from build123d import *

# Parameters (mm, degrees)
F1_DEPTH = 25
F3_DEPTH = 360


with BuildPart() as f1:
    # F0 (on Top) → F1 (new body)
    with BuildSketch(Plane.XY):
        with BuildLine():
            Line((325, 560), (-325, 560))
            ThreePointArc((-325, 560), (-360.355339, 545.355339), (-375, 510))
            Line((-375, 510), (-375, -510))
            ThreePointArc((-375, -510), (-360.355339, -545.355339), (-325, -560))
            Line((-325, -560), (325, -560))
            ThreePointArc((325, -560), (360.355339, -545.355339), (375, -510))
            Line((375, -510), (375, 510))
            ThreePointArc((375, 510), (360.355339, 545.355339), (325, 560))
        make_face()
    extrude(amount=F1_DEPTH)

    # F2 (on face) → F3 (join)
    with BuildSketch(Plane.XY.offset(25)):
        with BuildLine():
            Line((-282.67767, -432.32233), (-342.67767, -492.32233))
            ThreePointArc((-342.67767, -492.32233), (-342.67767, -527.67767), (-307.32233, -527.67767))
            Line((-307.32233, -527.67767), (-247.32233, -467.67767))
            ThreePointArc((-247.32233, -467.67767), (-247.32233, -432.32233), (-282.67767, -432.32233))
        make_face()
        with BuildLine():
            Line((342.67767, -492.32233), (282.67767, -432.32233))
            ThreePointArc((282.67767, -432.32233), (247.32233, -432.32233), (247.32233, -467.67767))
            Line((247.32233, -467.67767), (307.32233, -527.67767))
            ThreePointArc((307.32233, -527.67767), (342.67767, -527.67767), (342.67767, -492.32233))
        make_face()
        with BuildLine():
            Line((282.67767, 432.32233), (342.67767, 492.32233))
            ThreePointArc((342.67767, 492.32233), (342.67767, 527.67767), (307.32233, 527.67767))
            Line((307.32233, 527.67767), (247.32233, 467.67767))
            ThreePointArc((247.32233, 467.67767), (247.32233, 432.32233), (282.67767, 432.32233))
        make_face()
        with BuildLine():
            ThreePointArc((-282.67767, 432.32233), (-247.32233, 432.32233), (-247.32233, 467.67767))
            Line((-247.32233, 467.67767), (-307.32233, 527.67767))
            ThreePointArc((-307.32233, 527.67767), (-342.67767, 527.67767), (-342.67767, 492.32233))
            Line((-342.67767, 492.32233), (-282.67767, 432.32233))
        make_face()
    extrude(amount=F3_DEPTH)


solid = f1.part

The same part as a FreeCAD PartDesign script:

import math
import FreeCAD as App
import Part
import Sketcher

V = App.Vector

doc = App.newDocument("Part")
body = doc.addObject("PartDesign::Body", "Body")

sketch1 = body.newObject("Sketcher::SketchObject", "Sketch")
sketch1.AttachmentSupport = (doc.getObject("XY_Plane"), [""])
sketch1.MapMode = "FlatFace"
sketch1.addGeometry(Part.LineSegment(V(325, 560, 0), V(-325, 560, 0)), False)
sketch1.addGeometry(Part.ArcOfCircle(Part.Circle(V(-325, 510, 0), V(0, 0, 1), 50), math.radians(90), math.radians(180)), False)
sketch1.addGeometry(Part.LineSegment(V(-375, 510, 0), V(-375, -510, 0)), False)
sketch1.addGeometry(Part.ArcOfCircle(Part.Circle(V(-325, -510, 0), V(0, 0, 1), 50), math.radians(-180), math.radians(-90)), False)
sketch1.addGeometry(Part.LineSegment(V(-325, -560, 0), V(325, -560, 0)), False)
sketch1.addGeometry(Part.ArcOfCircle(Part.Circle(V(325, -510, 0), V(0, 0, 1), 50), math.radians(-90), math.radians(0)), False)
sketch1.addGeometry(Part.LineSegment(V(375, -510, 0), V(375, 510, 0)), False)
sketch1.addGeometry(Part.ArcOfCircle(Part.Circle(V(325, 510, 0), V(0, 0, 1), 50), math.radians(0), math.radians(90)), False)
sketch1.addConstraint(Sketcher.Constraint("Tangent", 0, 2, 1, 1))
sketch1.addConstraint(Sketcher.Constraint("Tangent", 1, 2, 2, 1))
sketch1.addConstraint(Sketcher.Constraint("Tangent", 2, 2, 3, 1))
sketch1.addConstraint(Sketcher.Constraint("Tangent", 3, 2, 4, 1))
sketch1.addConstraint(Sketcher.Constraint("Tangent", 4, 2, 5, 1))
sketch1.addConstraint(Sketcher.Constraint("Tangent", 5, 2, 6, 1))
sketch1.addConstraint(Sketcher.Constraint("Tangent", 6, 2, 7, 1))
sketch1.addConstraint(Sketcher.Constraint("Tangent", 7, 2, 0, 1))
sketch1.addConstraint(Sketcher.Constraint("Horizontal", 0))
sketch1.addConstraint(Sketcher.Constraint("Vertical", 2))
sketch1.addConstraint(Sketcher.Constraint("Horizontal", 4))
sketch1.addConstraint(Sketcher.Constraint("Vertical", 6))
sketch1.addConstraint(Sketcher.Constraint("Equal", 1, 3))
sketch1.addConstraint(Sketcher.Constraint("Equal", 3, 5))
sketch1.addConstraint(Sketcher.Constraint("Equal", 5, 7))
sketch1.addConstraint(Sketcher.Constraint("Symmetric", 1, 3, 5, 3, -1, 1))
sketch1.addConstraint(Sketcher.Constraint("Radius", 1, 50.0))
sketch1.addConstraint(Sketcher.Constraint("DistanceX", 0, 2, 0, 1, 650.0))
sketch1.addConstraint(Sketcher.Constraint("DistanceY", 2, 2, 2, 1, 1020.0))
pad1 = body.newObject("PartDesign::Pad", "Pad")
pad1.Profile = sketch1
pad1.Length = 25

sketch2 = body.newObject("Sketcher::SketchObject", "Sketch001")
sketch2.AttachmentSupport = (doc.getObject("XY_Plane"), [""])
sketch2.MapMode = "FlatFace"
sketch2.AttachmentOffset = App.Placement(V(0, 0, 25), App.Rotation())
sketch2.addGeometry(Part.LineSegment(V(-283, -432, 0), V(-343, -492, 0)), False)
sketch2.addGeometry(Part.ArcOfCircle(Part.Circle(V(-325, -510, 0), V(0, 0, 1), 25), math.radians(135), math.radians(315)), False)
sketch2.addGeometry(Part.LineSegment(V(-307, -528, 0), V(-247, -468, 0)), False)
sketch2.addGeometry(Part.ArcOfCircle(Part.Circle(V(-265, -450, 0), V(0, 0, 1), 25), math.radians(-45), math.radians(135)), False)
sketch2.addGeometry(Part.LineSegment(V(343, -492, 0), V(283, -432, 0)), False)
sketch2.addGeometry(Part.ArcOfCircle(Part.Circle(V(265, -450, 0), V(0, 0, 1), 25), math.radians(45), math.radians(225)), False)
sketch2.addGeometry(Part.LineSegment(V(247, -468, 0), V(307, -528, 0)), False)
sketch2.addGeometry(Part.ArcOfCircle(Part.Circle(V(325, -510, 0), V(0, 0, 1), 25), math.radians(-135), math.radians(45)), False)
sketch2.addGeometry(Part.LineSegment(V(283, 432, 0), V(343, 492, 0)), False)
sketch2.addGeometry(Part.ArcOfCircle(Part.Circle(V(325, 510, 0), V(0, 0, 1), 25), math.radians(-45), math.radians(135)), False)
sketch2.addGeometry(Part.LineSegment(V(307, 528, 0), V(247, 468, 0)), False)
sketch2.addGeometry(Part.ArcOfCircle(Part.Circle(V(265, 450, 0), V(0, 0, 1), 25), math.radians(135), math.radians(315)), False)
sketch2.addGeometry(Part.ArcOfCircle(Part.Circle(V(-265, 450, 0), V(0, 0, 1), 25), math.radians(-135), math.radians(45)), False)
sketch2.addGeometry(Part.LineSegment(V(-247, 468, 0), V(-307, 528, 0)), False)
sketch2.addGeometry(Part.ArcOfCircle(Part.Circle(V(-325, 510, 0), V(0, 0, 1), 25), math.radians(45), math.radians(225)), False)
sketch2.addGeometry(Part.LineSegment(V(-343, 492, 0), V(-283, 432, 0)), False)
sketch2.addConstraint(Sketcher.Constraint("Tangent", 0, 2, 1, 1))
sketch2.addConstraint(Sketcher.Constraint("Tangent", 1, 2, 2, 1))
sketch2.addConstraint(Sketcher.Constraint("Tangent", 2, 2, 3, 1))
sketch2.addConstraint(Sketcher.Constraint("Tangent", 3, 2, 0, 1))
sketch2.addConstraint(Sketcher.Constraint("Tangent", 4, 2, 5, 1))
sketch2.addConstraint(Sketcher.Constraint("Tangent", 5, 2, 6, 1))
sketch2.addConstraint(Sketcher.Constraint("Tangent", 6, 2, 7, 1))
sketch2.addConstraint(Sketcher.Constraint("Tangent", 7, 2, 4, 1))
sketch2.addConstraint(Sketcher.Constraint("Tangent", 8, 2, 9, 1))
sketch2.addConstraint(Sketcher.Constraint("Tangent", 9, 2, 10, 1))
sketch2.addConstraint(Sketcher.Constraint("Tangent", 10, 2, 11, 1))
sketch2.addConstraint(Sketcher.Constraint("Tangent", 11, 2, 8, 1))
sketch2.addConstraint(Sketcher.Constraint("Tangent", 12, 2, 13, 1))
sketch2.addConstraint(Sketcher.Constraint("Tangent", 13, 2, 14, 1))
sketch2.addConstraint(Sketcher.Constraint("Tangent", 14, 2, 15, 1))
sketch2.addConstraint(Sketcher.Constraint("Tangent", 15, 2, 12, 1))
sketch2.addConstraint(Sketcher.Constraint("Equal", 1, 3))
sketch2.addConstraint(Sketcher.Constraint("Equal", 3, 5))
sketch2.addConstraint(Sketcher.Constraint("Equal", 5, 7))
sketch2.addConstraint(Sketcher.Constraint("Equal", 7, 9))
sketch2.addConstraint(Sketcher.Constraint("Equal", 9, 11))
sketch2.addConstraint(Sketcher.Constraint("Equal", 11, 12))
sketch2.addConstraint(Sketcher.Constraint("Equal", 12, 14))
sketch2.addConstraint(Sketcher.Constraint("Symmetric", 1, 3, 9, 3, -1, 1))
sketch2.addConstraint(Sketcher.Constraint("Symmetric", 3, 3, 11, 3, -1, 1))
sketch2.addConstraint(Sketcher.Constraint("Symmetric", 5, 3, 12, 3, -1, 1))
sketch2.addConstraint(Sketcher.Constraint("Symmetric", 7, 3, 14, 3, -1, 1))
sketch2.addConstraint(Sketcher.Constraint("Symmetric", 3, 3, 5, 3, -2))
sketch2.addConstraint(Sketcher.Constraint("Symmetric", 1, 3, 7, 3, -2))
sketch2.addConstraint(Sketcher.Constraint("Perpendicular", 2, 4))
sketch2.addConstraint(Sketcher.Constraint("Radius", 1, 25.000001))
sketch2.addConstraint(Sketcher.Constraint("DistanceX", 1, 3, -1, 1, 325.0))
sketch2.addConstraint(Sketcher.Constraint("DistanceY", 1, 3, -1, 1, 510.0))
sketch2.addConstraint(Sketcher.Constraint("DistanceX", 3, 3, -1, 1, 265.0))
pad2 = body.newObject("PartDesign::Pad", "Pad001")
pad2.Profile = sketch2
pad2.Length = 360

doc.recompute()
